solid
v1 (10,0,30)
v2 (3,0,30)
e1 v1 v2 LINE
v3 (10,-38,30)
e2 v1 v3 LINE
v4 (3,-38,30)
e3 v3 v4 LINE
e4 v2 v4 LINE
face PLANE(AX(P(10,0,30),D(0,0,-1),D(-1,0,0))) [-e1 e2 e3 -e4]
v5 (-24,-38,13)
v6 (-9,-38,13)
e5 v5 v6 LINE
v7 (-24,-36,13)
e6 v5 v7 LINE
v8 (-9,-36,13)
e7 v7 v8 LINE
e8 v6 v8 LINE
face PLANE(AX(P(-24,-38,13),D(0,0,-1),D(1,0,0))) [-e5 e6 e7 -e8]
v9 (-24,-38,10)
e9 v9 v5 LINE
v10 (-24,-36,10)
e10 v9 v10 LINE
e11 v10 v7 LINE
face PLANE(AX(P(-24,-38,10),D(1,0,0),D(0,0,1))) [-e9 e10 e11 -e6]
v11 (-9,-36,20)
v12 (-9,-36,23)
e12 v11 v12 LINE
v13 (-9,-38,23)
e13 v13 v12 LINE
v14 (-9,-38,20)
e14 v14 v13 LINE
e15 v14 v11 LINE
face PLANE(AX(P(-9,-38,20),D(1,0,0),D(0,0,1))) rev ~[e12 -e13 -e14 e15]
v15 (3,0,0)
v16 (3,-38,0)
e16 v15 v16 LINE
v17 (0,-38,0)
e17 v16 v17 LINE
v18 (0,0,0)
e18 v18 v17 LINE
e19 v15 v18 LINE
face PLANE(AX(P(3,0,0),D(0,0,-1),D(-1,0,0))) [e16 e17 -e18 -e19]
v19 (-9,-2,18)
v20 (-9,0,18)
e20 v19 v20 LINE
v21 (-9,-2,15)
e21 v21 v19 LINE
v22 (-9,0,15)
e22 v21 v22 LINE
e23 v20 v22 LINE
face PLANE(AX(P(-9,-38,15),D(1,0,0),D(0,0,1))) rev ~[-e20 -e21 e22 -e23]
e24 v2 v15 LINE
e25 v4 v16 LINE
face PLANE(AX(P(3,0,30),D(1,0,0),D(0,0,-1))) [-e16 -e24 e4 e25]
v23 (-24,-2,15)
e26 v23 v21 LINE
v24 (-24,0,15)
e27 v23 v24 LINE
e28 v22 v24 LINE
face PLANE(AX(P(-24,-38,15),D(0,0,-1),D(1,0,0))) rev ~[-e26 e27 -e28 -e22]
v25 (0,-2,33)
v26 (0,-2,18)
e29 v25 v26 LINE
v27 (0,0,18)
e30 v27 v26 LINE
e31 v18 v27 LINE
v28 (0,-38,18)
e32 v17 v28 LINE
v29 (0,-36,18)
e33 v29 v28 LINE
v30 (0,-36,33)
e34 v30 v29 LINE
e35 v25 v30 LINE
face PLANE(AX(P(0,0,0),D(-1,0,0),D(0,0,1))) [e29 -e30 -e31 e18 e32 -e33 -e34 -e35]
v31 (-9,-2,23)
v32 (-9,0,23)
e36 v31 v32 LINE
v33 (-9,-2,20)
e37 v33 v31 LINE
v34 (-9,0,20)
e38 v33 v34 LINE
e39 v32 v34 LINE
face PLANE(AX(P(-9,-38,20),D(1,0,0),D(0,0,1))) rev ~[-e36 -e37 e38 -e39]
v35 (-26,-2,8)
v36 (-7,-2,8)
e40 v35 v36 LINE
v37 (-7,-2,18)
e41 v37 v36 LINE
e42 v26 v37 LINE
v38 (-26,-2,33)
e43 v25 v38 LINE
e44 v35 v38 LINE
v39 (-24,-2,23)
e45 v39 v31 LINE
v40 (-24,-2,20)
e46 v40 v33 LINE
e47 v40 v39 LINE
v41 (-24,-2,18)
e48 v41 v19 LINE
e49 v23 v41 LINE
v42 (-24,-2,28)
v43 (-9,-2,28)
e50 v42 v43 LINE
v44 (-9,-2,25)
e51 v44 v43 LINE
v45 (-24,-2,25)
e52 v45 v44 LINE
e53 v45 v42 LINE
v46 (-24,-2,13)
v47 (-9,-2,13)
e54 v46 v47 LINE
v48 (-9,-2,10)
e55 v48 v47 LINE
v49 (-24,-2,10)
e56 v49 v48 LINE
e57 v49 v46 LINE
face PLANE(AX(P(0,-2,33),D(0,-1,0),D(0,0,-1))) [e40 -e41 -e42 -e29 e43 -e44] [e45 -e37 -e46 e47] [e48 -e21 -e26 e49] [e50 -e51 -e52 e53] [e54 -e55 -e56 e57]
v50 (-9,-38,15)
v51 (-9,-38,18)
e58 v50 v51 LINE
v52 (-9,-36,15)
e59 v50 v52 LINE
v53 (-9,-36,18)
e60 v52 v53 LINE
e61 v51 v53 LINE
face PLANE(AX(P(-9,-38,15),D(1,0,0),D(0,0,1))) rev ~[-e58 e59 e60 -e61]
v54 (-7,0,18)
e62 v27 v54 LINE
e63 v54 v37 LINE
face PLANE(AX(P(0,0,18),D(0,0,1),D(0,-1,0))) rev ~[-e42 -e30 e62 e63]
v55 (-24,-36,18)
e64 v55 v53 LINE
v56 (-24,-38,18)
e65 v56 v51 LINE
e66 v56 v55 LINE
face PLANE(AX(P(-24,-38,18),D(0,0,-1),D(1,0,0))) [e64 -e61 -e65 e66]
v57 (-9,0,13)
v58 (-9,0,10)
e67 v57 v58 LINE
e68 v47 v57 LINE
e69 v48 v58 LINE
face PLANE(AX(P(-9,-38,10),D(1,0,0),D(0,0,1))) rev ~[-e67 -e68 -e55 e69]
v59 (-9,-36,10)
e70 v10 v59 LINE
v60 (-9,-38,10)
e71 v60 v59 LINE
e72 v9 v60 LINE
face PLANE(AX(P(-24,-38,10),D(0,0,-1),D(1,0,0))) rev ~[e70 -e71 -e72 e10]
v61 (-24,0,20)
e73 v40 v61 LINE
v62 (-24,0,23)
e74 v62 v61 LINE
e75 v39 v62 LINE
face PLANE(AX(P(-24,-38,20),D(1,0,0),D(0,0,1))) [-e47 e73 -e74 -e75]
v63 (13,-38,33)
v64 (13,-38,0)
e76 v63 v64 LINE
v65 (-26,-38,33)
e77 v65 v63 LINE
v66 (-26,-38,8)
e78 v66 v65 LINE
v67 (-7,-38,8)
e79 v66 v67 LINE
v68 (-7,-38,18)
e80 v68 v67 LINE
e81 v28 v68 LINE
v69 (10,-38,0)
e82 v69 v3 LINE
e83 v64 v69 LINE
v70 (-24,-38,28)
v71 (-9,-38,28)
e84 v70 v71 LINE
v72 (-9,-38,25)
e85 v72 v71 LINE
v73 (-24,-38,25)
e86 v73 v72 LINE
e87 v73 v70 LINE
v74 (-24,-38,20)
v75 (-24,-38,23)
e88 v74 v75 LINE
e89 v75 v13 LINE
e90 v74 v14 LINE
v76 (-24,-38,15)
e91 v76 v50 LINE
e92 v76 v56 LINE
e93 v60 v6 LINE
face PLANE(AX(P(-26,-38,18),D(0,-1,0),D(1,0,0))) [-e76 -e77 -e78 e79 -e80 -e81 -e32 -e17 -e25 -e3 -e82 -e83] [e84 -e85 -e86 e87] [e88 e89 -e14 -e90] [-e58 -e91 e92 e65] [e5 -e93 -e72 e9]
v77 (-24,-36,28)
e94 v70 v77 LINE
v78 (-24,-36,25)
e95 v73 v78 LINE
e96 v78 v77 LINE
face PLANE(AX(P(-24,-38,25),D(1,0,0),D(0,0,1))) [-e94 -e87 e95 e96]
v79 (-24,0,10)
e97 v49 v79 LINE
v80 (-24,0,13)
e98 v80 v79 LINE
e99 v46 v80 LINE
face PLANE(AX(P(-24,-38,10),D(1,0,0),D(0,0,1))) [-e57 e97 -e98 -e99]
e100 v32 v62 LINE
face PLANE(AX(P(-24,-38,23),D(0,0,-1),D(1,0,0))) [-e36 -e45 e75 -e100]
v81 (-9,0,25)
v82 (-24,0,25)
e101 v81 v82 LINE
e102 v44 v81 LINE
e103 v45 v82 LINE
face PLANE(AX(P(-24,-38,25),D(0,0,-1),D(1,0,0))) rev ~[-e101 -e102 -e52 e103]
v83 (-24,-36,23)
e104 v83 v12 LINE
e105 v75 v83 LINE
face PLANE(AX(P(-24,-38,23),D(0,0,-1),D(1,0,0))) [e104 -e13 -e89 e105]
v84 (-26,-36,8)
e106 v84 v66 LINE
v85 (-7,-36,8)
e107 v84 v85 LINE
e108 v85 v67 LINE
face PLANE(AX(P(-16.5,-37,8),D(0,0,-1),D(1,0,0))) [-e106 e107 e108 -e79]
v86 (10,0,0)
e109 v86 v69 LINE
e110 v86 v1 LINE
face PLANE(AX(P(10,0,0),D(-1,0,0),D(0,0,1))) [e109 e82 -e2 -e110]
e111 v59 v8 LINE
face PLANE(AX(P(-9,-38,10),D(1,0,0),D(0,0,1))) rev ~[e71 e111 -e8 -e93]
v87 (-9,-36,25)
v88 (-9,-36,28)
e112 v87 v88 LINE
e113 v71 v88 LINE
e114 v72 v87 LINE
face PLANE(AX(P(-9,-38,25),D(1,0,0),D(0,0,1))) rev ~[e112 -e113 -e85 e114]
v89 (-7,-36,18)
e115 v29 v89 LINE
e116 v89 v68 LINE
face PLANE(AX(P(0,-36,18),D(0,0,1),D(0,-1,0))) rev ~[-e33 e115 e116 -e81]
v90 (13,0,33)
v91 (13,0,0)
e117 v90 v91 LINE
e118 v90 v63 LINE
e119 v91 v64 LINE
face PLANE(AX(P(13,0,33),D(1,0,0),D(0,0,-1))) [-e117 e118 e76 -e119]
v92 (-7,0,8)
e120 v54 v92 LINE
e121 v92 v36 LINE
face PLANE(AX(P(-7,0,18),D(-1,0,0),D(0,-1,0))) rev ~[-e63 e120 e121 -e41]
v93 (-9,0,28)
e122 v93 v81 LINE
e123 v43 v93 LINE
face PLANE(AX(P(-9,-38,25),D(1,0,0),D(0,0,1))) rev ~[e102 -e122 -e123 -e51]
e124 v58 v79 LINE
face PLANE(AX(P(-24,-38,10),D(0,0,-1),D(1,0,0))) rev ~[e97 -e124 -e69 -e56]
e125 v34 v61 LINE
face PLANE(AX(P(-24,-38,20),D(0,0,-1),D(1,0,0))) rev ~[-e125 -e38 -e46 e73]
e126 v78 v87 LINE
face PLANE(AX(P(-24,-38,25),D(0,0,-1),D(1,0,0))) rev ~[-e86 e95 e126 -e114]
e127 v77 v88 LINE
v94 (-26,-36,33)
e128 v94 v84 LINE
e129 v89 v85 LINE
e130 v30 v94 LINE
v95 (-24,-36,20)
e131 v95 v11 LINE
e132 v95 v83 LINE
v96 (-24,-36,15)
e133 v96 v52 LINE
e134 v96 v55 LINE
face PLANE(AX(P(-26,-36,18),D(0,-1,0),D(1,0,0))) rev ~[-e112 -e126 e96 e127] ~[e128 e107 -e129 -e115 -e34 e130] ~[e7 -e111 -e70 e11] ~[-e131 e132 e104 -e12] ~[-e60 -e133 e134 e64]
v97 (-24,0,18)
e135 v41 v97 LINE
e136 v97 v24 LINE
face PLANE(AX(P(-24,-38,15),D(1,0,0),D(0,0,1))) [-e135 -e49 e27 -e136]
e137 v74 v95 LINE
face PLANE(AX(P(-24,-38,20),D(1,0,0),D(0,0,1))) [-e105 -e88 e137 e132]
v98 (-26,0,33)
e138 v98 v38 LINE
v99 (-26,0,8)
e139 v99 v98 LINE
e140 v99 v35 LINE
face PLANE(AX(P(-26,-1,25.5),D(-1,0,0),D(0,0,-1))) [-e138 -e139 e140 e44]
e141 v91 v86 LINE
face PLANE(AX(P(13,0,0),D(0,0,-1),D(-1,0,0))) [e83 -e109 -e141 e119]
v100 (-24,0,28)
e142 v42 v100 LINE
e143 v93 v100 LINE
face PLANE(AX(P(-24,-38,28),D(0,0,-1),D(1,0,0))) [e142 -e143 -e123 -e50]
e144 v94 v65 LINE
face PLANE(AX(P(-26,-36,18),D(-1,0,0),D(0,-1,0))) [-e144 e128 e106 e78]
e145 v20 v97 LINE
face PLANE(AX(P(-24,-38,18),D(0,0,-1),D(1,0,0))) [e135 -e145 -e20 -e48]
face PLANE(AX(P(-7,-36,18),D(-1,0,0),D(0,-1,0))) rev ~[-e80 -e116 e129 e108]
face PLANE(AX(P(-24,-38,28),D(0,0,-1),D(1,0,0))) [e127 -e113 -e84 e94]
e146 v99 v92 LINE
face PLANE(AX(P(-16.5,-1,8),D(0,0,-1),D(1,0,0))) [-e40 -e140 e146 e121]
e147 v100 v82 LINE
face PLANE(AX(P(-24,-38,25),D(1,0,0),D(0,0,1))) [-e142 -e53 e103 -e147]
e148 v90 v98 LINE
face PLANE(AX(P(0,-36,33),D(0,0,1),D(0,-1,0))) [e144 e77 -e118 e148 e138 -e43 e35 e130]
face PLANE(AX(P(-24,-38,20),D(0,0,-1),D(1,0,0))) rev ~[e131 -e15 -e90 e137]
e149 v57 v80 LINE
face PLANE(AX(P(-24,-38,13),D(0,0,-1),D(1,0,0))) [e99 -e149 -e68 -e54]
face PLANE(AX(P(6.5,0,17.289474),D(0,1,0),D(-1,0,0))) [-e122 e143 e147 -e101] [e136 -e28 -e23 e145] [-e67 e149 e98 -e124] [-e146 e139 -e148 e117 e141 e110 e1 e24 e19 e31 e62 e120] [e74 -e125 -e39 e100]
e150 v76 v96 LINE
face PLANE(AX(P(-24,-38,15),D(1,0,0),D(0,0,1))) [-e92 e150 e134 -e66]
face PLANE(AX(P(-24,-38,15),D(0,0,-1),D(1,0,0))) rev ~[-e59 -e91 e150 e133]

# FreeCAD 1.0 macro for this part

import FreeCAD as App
import Part
import Sketcher
Q = App.Units.Quantity

doc = App.newDocument("Part")
body = doc.addObject("PartDesign::Body", "Body")

# Sketch on XZ plane
sketch1 = doc.addObject("Sketcher::SketchObject", "Sketch")
body.addObject(sketch1)
sketch1.AttachmentSupport = (doc.XZ_Plane, [""])
sketch1.MapMode = "FlatFace"
sketch1.addGeometry(Part.LineSegment(App.Vector(0, 33, 0), App.Vector(0, 0, 0)), False)
sketch1.addGeometry(Part.LineSegment(App.Vector(0, 0, 0), App.Vector(3, 0, 0)), False)
sketch1.addGeometry(Part.LineSegment(App.Vector(3, 0, 0), App.Vector(3, 30, 0)), False)
sketch1.addGeometry(Part.LineSegment(App.Vector(3, 30, 0), App.Vector(10, 30, 0)), False)
sketch1.addGeometry(Part.LineSegment(App.Vector(10, 30, 0), App.Vector(10, 0, 0)), False)
sketch1.addGeometry(Part.LineSegment(App.Vector(10, 0, 0), App.Vector(13, 0, 0)), False)
sketch1.addGeometry(Part.LineSegment(App.Vector(13, 0, 0), App.Vector(13, 33, 0)), False)
sketch1.addGeometry(Part.LineSegment(App.Vector(13, 33, 0), App.Vector(0, 33, 0)), False)
sketch1.addConstraint(Sketcher.Constraint("Coincident", 0, 2, 1, 1))
sketch1.addConstraint(Sketcher.Constraint("Coincident", 1, 2, 2, 1))
sketch1.addConstraint(Sketcher.Constraint("Coincident", 2, 2, 3, 1))
sketch1.addConstraint(Sketcher.Constraint("Coincident", 3, 2, 4, 1))
sketch1.addConstraint(Sketcher.Constraint("Coincident", 4, 2, 5, 1))
sketch1.addConstraint(Sketcher.Constraint("Coincident", 5, 2, 6, 1))
sketch1.addConstraint(Sketcher.Constraint("Coincident", 6, 2, 7, 1))
sketch1.addConstraint(Sketcher.Constraint("Coincident", 7, 2, 0, 1))
sketch1.addConstraint(Sketcher.Constraint("Vertical", 0))
sketch1.addConstraint(Sketcher.Constraint("Horizontal", 1))
sketch1.addConstraint(Sketcher.Constraint("Vertical", 2))
sketch1.addConstraint(Sketcher.Constraint("Horizontal", 3))
sketch1.addConstraint(Sketcher.Constraint("Vertical", 4))
sketch1.addConstraint(Sketcher.Constraint("Horizontal", 5))
sketch1.addConstraint(Sketcher.Constraint("Vertical", 6))
sketch1.addConstraint(Sketcher.Constraint("Horizontal", 7))
sketch1.addConstraint(Sketcher.Constraint("Coincident", 0, 2, -1, 1))
sketch1.addConstraint(Sketcher.Constraint("PointOnObject", 4, 2, -1))
sketch1.addConstraint(Sketcher.Constraint("Equal", 1, 5))
sketch1.addConstraint(Sketcher.Constraint("DistanceX", 1, 1, 1, 2, Q("3 mm")))
sketch1.addConstraint(Sketcher.Constraint("DistanceX", 3, 1, 3, 2, Q("7 mm")))
sketch1.addConstraint(Sketcher.Constraint("DistanceY", 0, 2, 0, 1, Q("33 mm")))
sketch1.addConstraint(Sketcher.Constraint("DistanceY", 2, 1, 2, 2, Q("30 mm")))
pad1 = doc.addObject("PartDesign::Pad", "Pad")
body.addObject(pad1)
pad1.Profile = sketch1
pad1.Length = 38

# Sketch on YZ plane
sketch2 = doc.addObject("Sketcher::SketchObject", "Sketch001")
body.addObject(sketch2)
sketch2.AttachmentSupport = (doc.YZ_Plane, [""])
sketch2.MapMode = "FlatFace"
sketch2.addGeometry(Part.LineSegment(App.Vector(-38, 33, 0), App.Vector(-36, 33, 0)), False)
sketch2.addGeometry(Part.LineSegment(App.Vector(-36, 33, 0), App.Vector(-36, 18, 0)), False)
sketch2.addGeometry(Part.LineSegment(App.Vector(-36, 18, 0), App.Vector(-38, 18, 0)), False)
sketch2.addGeometry(Part.LineSegment(App.Vector(-38, 18, 0), App.Vector(-38, 33, 0)), False)
sketch2.addGeometry(Part.LineSegment(App.Vector(-2, 33, 0), App.Vector(0, 33, 0)), False)
sketch2.addGeometry(Part.LineSegment(App.Vector(0, 33, 0), App.Vector(0, 18, 0)), False)
sketch2.addGeometry(Part.LineSegment(App.Vector(0, 18, 0), App.Vector(-2, 18, 0)), False)
sketch2.addGeometry(Part.LineSegment(App.Vector(-2, 18, 0), App.Vector(-2, 33, 0)), False)
sketch2.addConstraint(Sketcher.Constraint("Coincident", 0, 2, 1, 1))
sketch2.addConstraint(Sketcher.Constraint("Coincident", 1, 2, 2, 1))
sketch2.addConstraint(Sketcher.Constraint("Coincident", 2, 2, 3, 1))
sketch2.addConstraint(Sketcher.Constraint("Coincident", 3, 2, 0, 1))
sketch2.addConstraint(Sketcher.Constraint("Coincident", 4, 2, 5, 1))
sketch2.addConstraint(Sketcher.Constraint("Coincident", 5, 2, 6, 1))
sketch2.addConstraint(Sketcher.Constraint("Coincident", 6, 2, 7, 1))
sketch2.addConstraint(Sketcher.Constraint("Coincident", 7, 2, 4, 1))
sketch2.addConstraint(Sketcher.Constraint("Horizontal", 0))
sketch2.addConstraint(Sketcher.Constraint("Vertical", 1))
sketch2.addConstraint(Sketcher.Constraint("Horizontal", 2))
sketch2.addConstraint(Sketcher.Constraint("Vertical", 3))
sketch2.addConstraint(Sketcher.Constraint("Horizontal", 4))
sketch2.addConstraint(Sketcher.Constraint("Vertical", 5))
sketch2.addConstraint(Sketcher.Constraint("Horizontal", 6))
sketch2.addConstraint(Sketcher.Constraint("Vertical", 7))
sketch2.addConstraint(Sketcher.Constraint("PointOnObject", 4, 2, -2))
sketch2.addConstraint(Sketcher.Constraint("Horizontal", 3, 2, 4, 2))
sketch2.addConstraint(Sketcher.Constraint("Horizontal", 2, 2, 5, 2))
sketch2.addConstraint(Sketcher.Constraint("Equal", 2, 4))
sketch2.addConstraint(Sketcher.Constraint("DistanceX", 0, 1, 0, 2, Q("2 mm")))
sketch2.addConstraint(Sketcher.Constraint("DistanceY", 1, 2, 1, 1, Q("15 mm")))
sketch2.addConstraint(Sketcher.Constraint("DistanceX", 0, 2, -1, 1, Q("36 mm")))
sketch2.addConstraint(Sketcher.Constraint("DistanceY", -1, 1, 0, 2, Q("33 mm")))
pad2 = doc.addObject("PartDesign::Pad", "Pad001")
body.addObject(pad2)
pad2.Profile = sketch2
pad2.Length = 26
pad2.Reversed = True

# Sketch on XY plane
sketch3 = doc.addObject("Sketcher::SketchObject", "Sketch002")
body.addObject(sketch3)
sketch3.AttachmentSupport = (doc.XY_Plane, [""])
sketch3.MapMode = "FlatFace"
sketch3.AttachmentOffset = App.Placement(App.Vector(0, 0, 18), App.Rotation())
sketch3.addGeometry(Part.LineSegment(App.Vector(-26, -38, 0), App.Vector(-26, -36, 0)), False)
sketch3.addGeometry(Part.LineSegment(App.Vector(-26, -36, 0), App.Vector(-7, -36, 0)), False)
sketch3.addGeometry(Part.LineSegment(App.Vector(-7, -36, 0), App.Vector(-7, -38, 0)), False)
sketch3.addGeometry(Part.LineSegment(App.Vector(-7, -38, 0), App.Vector(-26, -38, 0)), False)
sketch3.addGeometry(Part.LineSegment(App.Vector(-26, -2, 0), App.Vector(-26, 0, 0)), False)
sketch3.addGeometry(Part.LineSegment(App.Vector(-26, 0, 0), App.Vector(-7, 0, 0)), False)
sketch3.addGeometry(Part.LineSegment(App.Vector(-7, 0, 0), App.Vector(-7, -2, 0)), False)
sketch3.addGeometry(Part.LineSegment(App.Vector(-7, -2, 0), App.Vector(-26, -2, 0)), False)
sketch3.addConstraint(Sketcher.Constraint("Coincident", 0, 2, 1, 1))
sketch3.addConstraint(Sketcher.Constraint("Coincident", 1, 2, 2, 1))
sketch3.addConstraint(Sketcher.Constraint("Coincident", 2, 2, 3, 1))
sketch3.addConstraint(Sketcher.Constraint("Coincident", 3, 2, 0, 1))
sketch3.addConstraint(Sketcher.Constraint("Coincident", 4, 2, 5, 1))
sketch3.addConstraint(Sketcher.Constraint("Coincident", 5, 2, 6, 1))
sketch3.addConstraint(Sketcher.Constraint("Coincident", 6, 2, 7, 1))
sketch3.addConstraint(Sketcher.Constraint("Coincident", 7, 2, 4, 1))
sketch3.addConstraint(Sketcher.Constraint("Vertical", 0))
sketch3.addConstraint(Sketcher.Constraint("Horizontal", 1))
sketch3.addConstraint(Sketcher.Constraint("Vertical", 2))
sketch3.addConstraint(Sketcher.Constraint("Horizontal", 3))
sketch3.addConstraint(Sketcher.Constraint("Vertical", 4))
sketch3.addConstraint(Sketcher.Constraint("Horizontal", 5))
sketch3.addConstraint(Sketcher.Constraint("Vertical", 6))
sketch3.addConstraint(Sketcher.Constraint("Horizontal", 7))
sketch3.addConstraint(Sketcher.Constraint("PointOnObject", 4, 2, -1))
sketch3.addConstraint(Sketcher.Constraint("Vertical", 3, 2, 4, 2))
sketch3.addConstraint(Sketcher.Constraint("Vertical", 2, 2, 5, 2))
sketch3.addConstraint(Sketcher.Constraint("Equal", 2, 4))
sketch3.addConstraint(Sketcher.Constraint("DistanceX", 1, 1, 1, 2, Q("19 mm")))
sketch3.addConstraint(Sketcher.Constraint("DistanceY", 0, 1, 0, 2, Q("2 mm")))
sketch3.addConstraint(Sketcher.Constraint("DistanceX", 0, 2, -1, 1, Q("26 mm")))
sketch3.addConstraint(Sketcher.Constraint("DistanceY", 0, 2, -1, 1, Q("36 mm")))
pad3 = doc.addObject("PartDesign::Pad", "Pad002")
body.addObject(pad3)
pad3.Profile = sketch3
pad3.Length = 10
pad3.Reversed = True

# Sketch on XZ plane
sketch4 = doc.addObject("Sketcher::SketchObject", "Sketch003")
body.addObject(sketch4)
sketch4.AttachmentSupport = (doc.XZ_Plane, [""])
sketch4.MapMode = "FlatFace"
sketch4.AttachmentOffset = App.Placement(App.Vector(0, 0, 38), App.Rotation())
sketch4.addGeometry(Part.LineSegment(App.Vector(-24, 13, 0), App.Vector(-24, 10, 0)), False)
sketch4.addGeometry(Part.LineSegment(App.Vector(-24, 10, 0), App.Vector(-9, 10, 0)), False)
sketch4.addGeometry(Part.LineSegment(App.Vector(-9, 10, 0), App.Vector(-9, 13, 0)), False)
sketch4.addGeometry(Part.LineSegment(App.Vector(-9, 13, 0), App.Vector(-24, 13, 0)), False)
sketch4.addGeometry(Part.LineSegment(App.Vector(-24, 18, 0), App.Vector(-24, 15, 0)), False)
sketch4.addGeometry(Part.LineSegment(App.Vector(-24, 15, 0), App.Vector(-9, 15, 0)), False)
sketch4.addGeometry(Part.LineSegment(App.Vector(-9, 15, 0), App.Vector(-9, 18, 0)), False)
sketch4.addGeometry(Part.LineSegment(App.Vector(-9, 18, 0), App.Vector(-24, 18, 0)), False)
sketch4.addGeometry(Part.LineSegment(App.Vector(-24, 23, 0), App.Vector(-24, 20, 0)), False)
sketch4.addGeometry(Part.LineSegment(App.Vector(-24, 20, 0), App.Vector(-9, 20, 0)), False)
sketch4.addGeometry(Part.LineSegment(App.Vector(-9, 20, 0), App.Vector(-9, 23, 0)), False)
sketch4.addGeometry(Part.LineSegment(App.Vector(-9, 23, 0), App.Vector(-24, 23, 0)), False)
sketch4.addGeometry(Part.LineSegment(App.Vector(-24, 28, 0), App.Vector(-24, 25, 0)), False)
sketch4.addGeometry(Part.LineSegment(App.Vector(-24, 25, 0), App.Vector(-9, 25, 0)), False)
sketch4.addGeometry(Part.LineSegment(App.Vector(-9, 25, 0), App.Vector(-9, 28, 0)), False)
sketch4.addGeometry(Part.LineSegment(App.Vector(-9, 28, 0), App.Vector(-24, 28, 0)), False)
sketch4.addConstraint(Sketcher.Constraint("Coincident", 0, 2, 1, 1))
sketch4.addConstraint(Sketcher.Constraint("Coincident", 1, 2, 2, 1))
sketch4.addConstraint(Sketcher.Constraint("Coincident", 2, 2, 3, 1))
sketch4.addConstraint(Sketcher.Constraint("Coincident", 3, 2, 0, 1))
sketch4.addConstraint(Sketcher.Constraint("Coincident", 4, 2, 5, 1))
sketch4.addConstraint(Sketcher.Constraint("Coincident", 5, 2, 6, 1))
sketch4.addConstraint(Sketcher.Constraint("Coincident", 6, 2, 7, 1))
sketch4.addConstraint(Sketcher.Constraint("Coincident", 7, 2, 4, 1))
sketch4.addConstraint(Sketcher.Constraint("Coincident", 8, 2, 9, 1))
sketch4.addConstraint(Sketcher.Constraint("Coincident", 9, 2, 10, 1))
sketch4.addConstraint(Sketcher.Constraint("Coincident", 10, 2, 11, 1))
sketch4.addConstraint(Sketcher.Constraint("Coincident", 11, 2, 8, 1))
sketch4.addConstraint(Sketcher.Constraint("Coincident", 12, 2, 13, 1))
sketch4.addConstraint(Sketcher.Constraint("Coincident", 13, 2, 14, 1))
sketch4.addConstraint(Sketcher.Constraint("Coincident", 14, 2, 15, 1))
sketch4.addConstraint(Sketcher.Constraint("Coincident", 15, 2, 12, 1))
sketch4.addConstraint(Sketcher.Constraint("Vertical", 0))
sketch4.addConstraint(Sketcher.Constraint("Horizontal", 1))
sketch4.addConstraint(Sketcher.Constraint("Vertical", 2))
sketch4.addConstraint(Sketcher.Constraint("Horizontal", 3))
sketch4.addConstraint(Sketcher.Constraint("Vertical", 4))
sketch4.addConstraint(Sketcher.Constraint("Horizontal", 5))
sketch4.addConstraint(Sketcher.Constraint("Vertical", 6))
sketch4.addConstraint(Sketcher.Constraint("Horizontal", 7))
sketch4.addConstraint(Sketcher.Constraint("Vertical", 8))
sketch4.addConstraint(Sketcher.Constraint("Horizontal", 9))
sketch4.addConstraint(Sketcher.Constraint("Vertical", 10))
sketch4.addConstraint(Sketcher.Constraint("Horizontal", 11))
sketch4.addConstraint(Sketcher.Constraint("Vertical", 12))
sketch4.addConstraint(Sketcher.Constraint("Horizontal", 13))
sketch4.addConstraint(Sketcher.Constraint("Vertical", 14))
sketch4.addConstraint(Sketcher.Constraint("Horizontal", 15))
sketch4.addConstraint(Sketcher.Constraint("Vertical", 3, 2, 4, 2))
sketch4.addConstraint(Sketcher.Constraint("Vertical", 2, 2, 5, 2))
sketch4.addConstraint(Sketcher.Constraint("Vertical", 7, 2, 8, 2))
sketch4.addConstraint(Sketcher.Constraint("Vertical", 6, 2, 9, 2))
sketch4.addConstraint(Sketcher.Constraint("Vertical", 11, 2, 12, 2))
sketch4.addConstraint(Sketcher.Constraint("Vertical", 10, 2, 13, 2))
sketch4.addConstraint(Sketcher.Constraint("Equal", 2, 4))
sketch4.addConstraint(Sketcher.Constraint("Equal", 6, 8))
sketch4.addConstraint(Sketcher.Constraint("Equal", 10, 12))
sketch4.addConstraint(Sketcher.Constraint("DistanceX", 1, 1, 1, 2, Q("15 mm")))
sketch4.addConstraint(Sketcher.Constraint("DistanceY", 0, 2, 0, 1, Q("3 mm")))
sketch4.addConstraint(Sketcher.Constraint("DistanceX", 0, 2, -1, 1, Q("24 mm")))
sketch4.addConstraint(Sketcher.Constraint("DistanceY", -1, 1, 0, 2, Q("10 mm")))
sketch4.addConstraint(Sketcher.Constraint("DistanceY", -1, 1, 4, 2, Q("15 mm")))
sketch4.addConstraint(Sketcher.Constraint("DistanceY", -1, 1, 8, 2, Q("20 mm")))
sketch4.addConstraint(Sketcher.Constraint("DistanceY", -1, 1, 12, 2, Q("25 mm")))
pocket1 = doc.addObject("PartDesign::Pocket", "Pocket")
body.addObject(pocket1)
pocket1.Profile = sketch4
pocket1.Length = 40

doc.recompute()
